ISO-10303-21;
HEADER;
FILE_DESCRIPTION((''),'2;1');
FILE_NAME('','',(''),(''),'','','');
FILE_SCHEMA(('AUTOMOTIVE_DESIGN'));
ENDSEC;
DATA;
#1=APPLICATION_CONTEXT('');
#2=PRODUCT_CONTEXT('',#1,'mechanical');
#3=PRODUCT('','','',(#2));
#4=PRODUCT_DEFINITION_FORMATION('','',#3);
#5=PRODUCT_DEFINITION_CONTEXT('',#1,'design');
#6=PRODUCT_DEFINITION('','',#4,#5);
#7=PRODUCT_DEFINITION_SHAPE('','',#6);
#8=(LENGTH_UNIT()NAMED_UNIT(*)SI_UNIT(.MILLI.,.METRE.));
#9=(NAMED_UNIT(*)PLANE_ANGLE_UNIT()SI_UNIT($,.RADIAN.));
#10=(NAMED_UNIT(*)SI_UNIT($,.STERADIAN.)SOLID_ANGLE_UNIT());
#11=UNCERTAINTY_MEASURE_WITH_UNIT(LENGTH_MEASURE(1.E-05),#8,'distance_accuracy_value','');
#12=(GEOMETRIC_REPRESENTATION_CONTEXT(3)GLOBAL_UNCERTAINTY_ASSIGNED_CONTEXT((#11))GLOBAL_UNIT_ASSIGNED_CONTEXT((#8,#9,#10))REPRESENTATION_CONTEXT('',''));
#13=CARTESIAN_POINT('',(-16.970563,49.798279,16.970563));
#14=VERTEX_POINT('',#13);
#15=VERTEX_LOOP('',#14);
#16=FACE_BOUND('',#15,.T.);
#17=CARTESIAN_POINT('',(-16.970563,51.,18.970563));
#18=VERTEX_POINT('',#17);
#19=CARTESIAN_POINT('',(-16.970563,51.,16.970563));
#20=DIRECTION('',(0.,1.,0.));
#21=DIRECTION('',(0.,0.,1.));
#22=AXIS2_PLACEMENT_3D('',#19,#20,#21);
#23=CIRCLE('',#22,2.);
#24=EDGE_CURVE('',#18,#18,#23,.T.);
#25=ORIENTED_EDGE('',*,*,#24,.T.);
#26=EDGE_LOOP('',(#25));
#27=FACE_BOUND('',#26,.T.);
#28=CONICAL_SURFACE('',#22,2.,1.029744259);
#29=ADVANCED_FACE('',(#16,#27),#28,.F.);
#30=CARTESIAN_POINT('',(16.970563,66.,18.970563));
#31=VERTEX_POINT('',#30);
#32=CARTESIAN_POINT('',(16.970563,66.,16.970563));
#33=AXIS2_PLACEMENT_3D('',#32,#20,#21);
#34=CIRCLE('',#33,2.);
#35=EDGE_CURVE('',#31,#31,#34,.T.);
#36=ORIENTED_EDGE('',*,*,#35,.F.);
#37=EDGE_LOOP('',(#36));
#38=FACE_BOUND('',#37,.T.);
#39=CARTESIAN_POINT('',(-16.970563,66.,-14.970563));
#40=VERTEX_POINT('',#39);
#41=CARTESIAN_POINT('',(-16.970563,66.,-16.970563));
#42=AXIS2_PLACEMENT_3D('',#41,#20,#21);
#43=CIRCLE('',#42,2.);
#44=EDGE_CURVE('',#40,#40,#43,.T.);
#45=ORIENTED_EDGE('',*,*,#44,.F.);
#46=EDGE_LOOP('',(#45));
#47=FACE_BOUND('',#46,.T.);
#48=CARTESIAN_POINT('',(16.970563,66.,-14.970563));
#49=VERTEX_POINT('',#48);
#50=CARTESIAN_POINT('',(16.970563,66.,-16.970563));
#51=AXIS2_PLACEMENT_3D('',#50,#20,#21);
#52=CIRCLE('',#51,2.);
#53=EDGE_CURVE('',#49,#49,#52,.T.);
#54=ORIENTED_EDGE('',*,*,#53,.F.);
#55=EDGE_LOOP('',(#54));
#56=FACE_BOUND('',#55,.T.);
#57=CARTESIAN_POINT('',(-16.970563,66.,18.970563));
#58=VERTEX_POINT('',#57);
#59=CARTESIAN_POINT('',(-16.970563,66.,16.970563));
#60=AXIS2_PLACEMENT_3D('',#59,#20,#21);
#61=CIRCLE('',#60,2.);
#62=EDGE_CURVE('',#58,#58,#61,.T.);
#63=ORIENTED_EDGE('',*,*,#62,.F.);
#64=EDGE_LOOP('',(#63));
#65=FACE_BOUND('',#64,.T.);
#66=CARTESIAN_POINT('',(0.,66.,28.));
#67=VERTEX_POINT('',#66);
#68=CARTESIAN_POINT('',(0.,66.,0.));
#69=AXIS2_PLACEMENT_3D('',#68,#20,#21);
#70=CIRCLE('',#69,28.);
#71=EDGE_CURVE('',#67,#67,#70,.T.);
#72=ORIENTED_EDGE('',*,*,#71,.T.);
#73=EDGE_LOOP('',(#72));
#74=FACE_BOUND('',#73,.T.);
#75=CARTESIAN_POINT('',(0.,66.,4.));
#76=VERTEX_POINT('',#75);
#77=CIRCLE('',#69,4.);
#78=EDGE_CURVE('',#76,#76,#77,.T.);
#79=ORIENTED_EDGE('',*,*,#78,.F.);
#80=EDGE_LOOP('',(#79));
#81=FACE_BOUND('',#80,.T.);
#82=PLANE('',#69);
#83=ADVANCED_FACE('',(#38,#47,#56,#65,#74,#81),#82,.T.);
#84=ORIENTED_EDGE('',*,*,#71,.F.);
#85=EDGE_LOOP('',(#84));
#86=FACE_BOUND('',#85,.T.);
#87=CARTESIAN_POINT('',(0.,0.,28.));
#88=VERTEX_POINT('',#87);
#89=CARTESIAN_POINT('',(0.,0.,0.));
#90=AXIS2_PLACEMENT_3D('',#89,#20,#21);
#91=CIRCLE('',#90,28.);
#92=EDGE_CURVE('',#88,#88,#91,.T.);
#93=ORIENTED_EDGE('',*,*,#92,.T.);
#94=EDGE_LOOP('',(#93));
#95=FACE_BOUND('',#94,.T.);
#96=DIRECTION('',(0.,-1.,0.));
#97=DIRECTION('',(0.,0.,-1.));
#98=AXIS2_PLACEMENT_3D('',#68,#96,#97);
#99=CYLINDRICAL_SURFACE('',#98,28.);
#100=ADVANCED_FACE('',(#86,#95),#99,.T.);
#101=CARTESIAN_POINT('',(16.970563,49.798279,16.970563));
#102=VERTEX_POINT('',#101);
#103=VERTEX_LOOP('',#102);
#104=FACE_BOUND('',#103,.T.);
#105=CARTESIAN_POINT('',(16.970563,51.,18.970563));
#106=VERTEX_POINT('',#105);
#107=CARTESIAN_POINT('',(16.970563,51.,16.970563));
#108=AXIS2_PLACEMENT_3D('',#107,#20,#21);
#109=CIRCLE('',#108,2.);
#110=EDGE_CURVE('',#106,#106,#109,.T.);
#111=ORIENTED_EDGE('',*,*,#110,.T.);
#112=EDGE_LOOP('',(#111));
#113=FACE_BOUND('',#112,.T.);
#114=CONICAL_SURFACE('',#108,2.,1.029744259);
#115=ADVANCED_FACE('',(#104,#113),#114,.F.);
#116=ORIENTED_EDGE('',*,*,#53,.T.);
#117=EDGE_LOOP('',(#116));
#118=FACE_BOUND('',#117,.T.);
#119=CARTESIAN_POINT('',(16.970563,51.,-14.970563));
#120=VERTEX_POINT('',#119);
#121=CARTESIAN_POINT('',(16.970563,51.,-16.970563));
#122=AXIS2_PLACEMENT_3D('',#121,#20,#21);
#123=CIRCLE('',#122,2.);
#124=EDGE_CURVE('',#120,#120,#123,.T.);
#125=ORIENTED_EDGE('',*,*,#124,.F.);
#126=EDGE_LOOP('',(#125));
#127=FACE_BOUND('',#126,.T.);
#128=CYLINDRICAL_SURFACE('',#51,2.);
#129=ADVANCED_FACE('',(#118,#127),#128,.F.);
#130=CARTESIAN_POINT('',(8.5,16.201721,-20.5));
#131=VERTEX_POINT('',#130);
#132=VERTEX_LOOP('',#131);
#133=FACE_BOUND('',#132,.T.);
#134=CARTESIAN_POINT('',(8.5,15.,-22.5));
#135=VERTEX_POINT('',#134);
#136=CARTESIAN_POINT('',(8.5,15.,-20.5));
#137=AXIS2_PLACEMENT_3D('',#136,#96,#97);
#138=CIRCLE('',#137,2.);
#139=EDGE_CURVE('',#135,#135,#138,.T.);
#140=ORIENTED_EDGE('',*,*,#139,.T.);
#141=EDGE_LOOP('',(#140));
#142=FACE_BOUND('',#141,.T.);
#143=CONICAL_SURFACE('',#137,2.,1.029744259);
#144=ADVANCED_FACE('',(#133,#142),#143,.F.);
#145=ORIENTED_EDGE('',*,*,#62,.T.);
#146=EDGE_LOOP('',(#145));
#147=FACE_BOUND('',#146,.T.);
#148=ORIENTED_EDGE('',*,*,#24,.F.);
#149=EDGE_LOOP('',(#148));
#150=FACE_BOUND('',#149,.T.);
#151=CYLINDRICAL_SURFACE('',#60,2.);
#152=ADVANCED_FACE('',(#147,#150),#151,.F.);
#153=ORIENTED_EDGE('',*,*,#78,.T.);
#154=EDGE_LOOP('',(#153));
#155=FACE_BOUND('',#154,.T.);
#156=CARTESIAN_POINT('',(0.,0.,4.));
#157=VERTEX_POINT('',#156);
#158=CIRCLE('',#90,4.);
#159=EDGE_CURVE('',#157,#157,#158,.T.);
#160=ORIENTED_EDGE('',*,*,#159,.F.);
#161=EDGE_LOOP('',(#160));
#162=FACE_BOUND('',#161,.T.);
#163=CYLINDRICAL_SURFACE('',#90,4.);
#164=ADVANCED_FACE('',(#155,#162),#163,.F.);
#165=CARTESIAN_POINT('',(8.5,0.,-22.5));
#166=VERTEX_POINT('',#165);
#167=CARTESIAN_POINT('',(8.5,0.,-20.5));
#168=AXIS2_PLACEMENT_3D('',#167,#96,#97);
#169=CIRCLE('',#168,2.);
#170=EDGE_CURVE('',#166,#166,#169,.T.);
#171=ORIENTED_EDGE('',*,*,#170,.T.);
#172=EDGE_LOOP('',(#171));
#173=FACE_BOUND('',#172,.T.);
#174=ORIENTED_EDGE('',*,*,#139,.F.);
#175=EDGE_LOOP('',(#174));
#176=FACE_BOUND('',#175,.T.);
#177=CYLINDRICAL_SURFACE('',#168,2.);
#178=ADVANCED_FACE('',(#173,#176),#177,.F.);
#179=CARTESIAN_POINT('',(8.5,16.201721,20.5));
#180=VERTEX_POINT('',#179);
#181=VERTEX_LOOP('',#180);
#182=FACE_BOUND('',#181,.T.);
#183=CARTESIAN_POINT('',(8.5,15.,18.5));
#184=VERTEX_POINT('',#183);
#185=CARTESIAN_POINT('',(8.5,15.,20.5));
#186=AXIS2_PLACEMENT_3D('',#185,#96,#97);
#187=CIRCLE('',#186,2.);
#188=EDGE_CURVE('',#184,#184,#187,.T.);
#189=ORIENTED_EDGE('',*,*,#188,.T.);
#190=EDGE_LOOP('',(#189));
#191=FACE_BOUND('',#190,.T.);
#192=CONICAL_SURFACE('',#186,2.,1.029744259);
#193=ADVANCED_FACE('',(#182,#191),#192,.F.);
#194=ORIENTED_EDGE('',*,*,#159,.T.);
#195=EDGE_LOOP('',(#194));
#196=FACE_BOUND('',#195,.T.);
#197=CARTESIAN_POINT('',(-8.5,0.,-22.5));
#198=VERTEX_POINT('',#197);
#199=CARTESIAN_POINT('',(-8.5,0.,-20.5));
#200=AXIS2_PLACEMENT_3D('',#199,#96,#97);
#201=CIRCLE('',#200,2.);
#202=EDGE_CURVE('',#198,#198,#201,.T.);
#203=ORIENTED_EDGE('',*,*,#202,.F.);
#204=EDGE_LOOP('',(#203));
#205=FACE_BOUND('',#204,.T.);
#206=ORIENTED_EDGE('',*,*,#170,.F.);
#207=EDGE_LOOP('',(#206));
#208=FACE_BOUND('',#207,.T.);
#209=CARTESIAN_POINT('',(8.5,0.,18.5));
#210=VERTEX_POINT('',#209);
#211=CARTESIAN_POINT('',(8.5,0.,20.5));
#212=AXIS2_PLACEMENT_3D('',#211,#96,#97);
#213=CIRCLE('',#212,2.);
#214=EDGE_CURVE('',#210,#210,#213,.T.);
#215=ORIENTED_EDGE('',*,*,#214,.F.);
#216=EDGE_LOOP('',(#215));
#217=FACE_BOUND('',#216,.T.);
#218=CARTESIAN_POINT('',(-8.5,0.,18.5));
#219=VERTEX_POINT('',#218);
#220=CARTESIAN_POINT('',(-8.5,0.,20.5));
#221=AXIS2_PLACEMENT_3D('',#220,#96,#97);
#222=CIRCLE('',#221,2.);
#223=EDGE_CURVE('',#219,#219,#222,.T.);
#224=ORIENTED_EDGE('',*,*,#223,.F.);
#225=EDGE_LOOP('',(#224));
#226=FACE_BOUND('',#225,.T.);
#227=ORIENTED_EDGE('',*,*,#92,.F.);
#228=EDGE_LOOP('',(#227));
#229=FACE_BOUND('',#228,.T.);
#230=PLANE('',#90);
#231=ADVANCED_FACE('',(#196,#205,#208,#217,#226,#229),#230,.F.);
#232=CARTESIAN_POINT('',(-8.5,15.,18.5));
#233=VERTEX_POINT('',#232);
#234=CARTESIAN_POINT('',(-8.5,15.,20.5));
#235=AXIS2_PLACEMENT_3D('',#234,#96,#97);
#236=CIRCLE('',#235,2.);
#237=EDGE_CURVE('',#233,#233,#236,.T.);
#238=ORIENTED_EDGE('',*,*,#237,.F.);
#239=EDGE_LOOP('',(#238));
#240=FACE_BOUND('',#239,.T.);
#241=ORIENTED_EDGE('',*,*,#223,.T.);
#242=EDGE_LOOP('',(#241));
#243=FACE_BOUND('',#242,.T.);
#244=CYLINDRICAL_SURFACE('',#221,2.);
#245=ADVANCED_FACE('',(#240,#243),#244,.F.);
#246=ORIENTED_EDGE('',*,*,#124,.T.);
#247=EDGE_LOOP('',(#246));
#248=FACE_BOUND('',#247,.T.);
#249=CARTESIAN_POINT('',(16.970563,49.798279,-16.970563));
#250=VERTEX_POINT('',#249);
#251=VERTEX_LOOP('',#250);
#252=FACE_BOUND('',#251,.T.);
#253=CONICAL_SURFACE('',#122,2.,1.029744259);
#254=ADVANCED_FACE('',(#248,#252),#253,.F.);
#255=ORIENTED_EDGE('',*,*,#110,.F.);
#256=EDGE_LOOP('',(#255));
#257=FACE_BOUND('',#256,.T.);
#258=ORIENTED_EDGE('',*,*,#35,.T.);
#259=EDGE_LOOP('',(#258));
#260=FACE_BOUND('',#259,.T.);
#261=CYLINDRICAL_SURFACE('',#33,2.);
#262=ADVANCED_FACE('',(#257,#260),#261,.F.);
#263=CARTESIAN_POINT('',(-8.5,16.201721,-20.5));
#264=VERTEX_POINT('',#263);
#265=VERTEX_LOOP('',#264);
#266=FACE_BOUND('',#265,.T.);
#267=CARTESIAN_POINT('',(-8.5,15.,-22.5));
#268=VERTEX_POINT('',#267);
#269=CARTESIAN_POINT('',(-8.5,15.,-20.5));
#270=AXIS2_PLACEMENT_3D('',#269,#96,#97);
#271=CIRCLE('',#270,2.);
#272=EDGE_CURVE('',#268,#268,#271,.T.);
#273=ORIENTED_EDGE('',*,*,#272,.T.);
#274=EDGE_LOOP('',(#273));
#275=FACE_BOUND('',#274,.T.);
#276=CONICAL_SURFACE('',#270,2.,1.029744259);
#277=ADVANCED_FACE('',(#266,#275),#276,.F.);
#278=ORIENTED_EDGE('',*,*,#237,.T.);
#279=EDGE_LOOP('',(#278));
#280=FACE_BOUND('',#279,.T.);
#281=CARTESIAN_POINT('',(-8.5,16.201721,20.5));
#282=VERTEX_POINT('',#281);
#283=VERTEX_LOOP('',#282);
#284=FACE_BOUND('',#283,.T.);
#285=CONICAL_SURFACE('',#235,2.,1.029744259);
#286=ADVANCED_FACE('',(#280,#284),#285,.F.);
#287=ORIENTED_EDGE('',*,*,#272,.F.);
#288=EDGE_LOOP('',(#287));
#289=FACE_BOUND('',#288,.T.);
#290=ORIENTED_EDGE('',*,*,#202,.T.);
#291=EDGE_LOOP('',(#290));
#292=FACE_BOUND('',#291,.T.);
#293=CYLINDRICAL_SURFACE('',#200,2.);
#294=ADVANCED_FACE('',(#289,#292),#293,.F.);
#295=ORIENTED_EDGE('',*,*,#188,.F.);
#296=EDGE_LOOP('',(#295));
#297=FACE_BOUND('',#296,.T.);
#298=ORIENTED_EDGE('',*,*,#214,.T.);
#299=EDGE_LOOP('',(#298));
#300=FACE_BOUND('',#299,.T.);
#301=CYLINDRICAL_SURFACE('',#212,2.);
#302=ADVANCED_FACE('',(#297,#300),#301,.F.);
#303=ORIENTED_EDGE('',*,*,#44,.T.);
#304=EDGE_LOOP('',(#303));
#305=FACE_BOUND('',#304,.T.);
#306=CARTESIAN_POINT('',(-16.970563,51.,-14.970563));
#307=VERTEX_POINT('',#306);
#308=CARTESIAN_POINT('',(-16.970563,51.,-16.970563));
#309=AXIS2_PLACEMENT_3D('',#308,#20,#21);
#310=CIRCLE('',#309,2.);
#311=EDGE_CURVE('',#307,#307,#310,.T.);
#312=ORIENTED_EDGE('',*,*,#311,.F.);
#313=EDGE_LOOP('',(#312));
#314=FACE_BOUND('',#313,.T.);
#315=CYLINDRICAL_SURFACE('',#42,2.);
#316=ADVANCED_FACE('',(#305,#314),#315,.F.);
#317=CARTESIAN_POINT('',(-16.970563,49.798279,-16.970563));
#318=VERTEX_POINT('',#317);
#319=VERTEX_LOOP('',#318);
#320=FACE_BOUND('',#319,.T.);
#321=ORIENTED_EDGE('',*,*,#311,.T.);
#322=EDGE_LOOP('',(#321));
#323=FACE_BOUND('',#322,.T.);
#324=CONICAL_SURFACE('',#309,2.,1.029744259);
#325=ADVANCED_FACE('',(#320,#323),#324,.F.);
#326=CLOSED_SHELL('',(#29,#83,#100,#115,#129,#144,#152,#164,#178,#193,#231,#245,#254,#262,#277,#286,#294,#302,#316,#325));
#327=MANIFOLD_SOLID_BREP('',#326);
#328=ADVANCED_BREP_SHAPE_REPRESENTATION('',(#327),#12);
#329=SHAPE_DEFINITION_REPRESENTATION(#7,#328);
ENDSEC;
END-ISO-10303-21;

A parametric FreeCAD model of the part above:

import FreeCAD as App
import Part
import Sketcher

doc = App.newDocument("Part")
body = doc.addObject("PartDesign::Body", "Body")

# Sketch on XZ plane
sketch1 = body.newObject("Sketcher::SketchObject", "Sketch")
sketch1.AttachmentSupport = (doc.getObject("XZ_Plane"), [""])
sketch1.MapMode = "FlatFace"
sketch1.addGeometry(Part.Circle(App.Vector(0, 0, 0), App.Vector(0, 0, 1), 28), False)
sketch1.addConstraint([
    Sketcher.Constraint("Coincident", 0, 3, -1, 1),
    Sketcher.Constraint("Diameter", 0, 56.0),
])
pad1 = body.newObject("PartDesign::Pad", "Pad")
pad1.Profile = sketch1
pad1.Length = 66
pad1.Reversed = True

# Sketch on XZ plane
sketch2 = body.newObject("Sketcher::SketchObject", "Sketch001")
sketch2.AttachmentSupport = (doc.getObject("XZ_Plane"), [""])
sketch2.MapMode = "FlatFace"
sketch2.AttachmentOffset = App.Placement(App.Vector(0, 0, -66), App.Rotation())
sketch2.addGeometry([
    Part.Circle(App.Vector(-17, -17, 0), App.Vector(0, 0, 1), 2),
    Part.Circle(App.Vector(17, -17, 0), App.Vector(0, 0, 1), 2),
    Part.Circle(App.Vector(17, 17, 0), App.Vector(0, 0, 1), 2),
    Part.Circle(App.Vector(-17, 17, 0), App.Vector(0, 0, 1), 2),
], False)
sketch2.addConstraint([
    Sketcher.Constraint("Equal", 0, 1),
    Sketcher.Constraint("Equal", 1, 2),
    Sketcher.Constraint("Equal", 2, 3),
    Sketcher.Constraint("Symmetric", 0, 3, 2, 3, -1, 1),
    Sketcher.Constraint("Symmetric", 1, 3, 3, 3, -1, 1),
    Sketcher.Constraint("Symmetric", 0, 3, 1, 3, -2),
    Sketcher.Constraint("Diameter", 0, 4.0),
    Sketcher.Constraint("DistanceX", 0, 3, -1, 1, 16.970563),
    Sketcher.Constraint("DistanceY", 0, 3, -1, 1, 16.970563),
])
doc.recompute()
hole = body.newObject("PartDesign::Hole", "Hole")
hole.Profile = sketch2
hole.ThreadType = "None"
hole.Diameter = 4
hole.DepthType = "Dimension"
hole.Depth = 15
hole.DrillPoint = "Angled"
hole.DrillPointAngle = 118
hole.Reversed = True

# Sketch on XZ plane
sketch3 = body.newObject("Sketcher::SketchObject", "Sketch002")
sketch3.AttachmentSupport = (doc.getObject("XZ_Plane"), [""])
sketch3.MapMode = "FlatFace"
sketch3.AttachmentOffset = App.Placement(App.Vector(0, 0, -66), App.Rotation())
sketch3.addGeometry(Part.Circle(App.Vector(0, 0, 0), App.Vector(0, 0, 1), 4), False)
sketch3.addConstraint([
    Sketcher.Constraint("Coincident", 0, 3, -1, 1),
    Sketcher.Constraint("Diameter", 0, 8.0),
])
pocket1 = body.newObject("PartDesign::Pocket", "Pocket")
pocket1.Profile = sketch3
pocket1.Type = "ThroughAll"
pocket1.Reversed = True

# Sketch on XZ plane
sketch4 = body.newObject("Sketcher::SketchObject", "Sketch003")
sketch4.AttachmentSupport = (doc.getObject("XZ_Plane"), [""])
sketch4.MapMode = "FlatFace"
sketch4.addGeometry([
    Part.Circle(App.Vector(-8.5, 20.5, 0), App.Vector(0, 0, 1), 2),
    Part.Circle(App.Vector(8.5, 20.5, 0), App.Vector(0, 0, 1), 2),
    Part.Circle(App.Vector(8.5, -20.5, 0), App.Vector(0, 0, 1), 2),
    Part.Circle(App.Vector(-8.5, -20.5, 0), App.Vector(0, 0, 1), 2),
], False)
sketch4.addConstraint([
    Sketcher.Constraint("Equal", 0, 1),
    Sketcher.Constraint("Equal", 1, 2),
    Sketcher.Constraint("Equal", 2, 3),
    Sketcher.Constraint("Symmetric", 0, 3, 2, 3, -1, 1),
    Sketcher.Constraint("Symmetric", 1, 3, 3, 3, -1, 1),
    Sketcher.Constraint("Symmetric", 0, 3, 1, 3, -2),
    Sketcher.Constraint("Diameter", 0, 4.0),
    Sketcher.Constraint("DistanceX", 0, 3, 1, 3, 17.0),
    Sketcher.Constraint("DistanceY", 2, 3, 1, 3, 41.0),
])
doc.recompute()
hole2 = body.newObject("PartDesign::Hole", "Hole001")
hole2.Profile = sketch4
hole2.ThreadType = "None"
hole2.Diameter = 4
hole2.DepthType = "Dimension"
hole2.Depth = 15
hole2.DrillPoint = "Angled"
hole2.DrillPointAngle = 118

doc.recompute()
